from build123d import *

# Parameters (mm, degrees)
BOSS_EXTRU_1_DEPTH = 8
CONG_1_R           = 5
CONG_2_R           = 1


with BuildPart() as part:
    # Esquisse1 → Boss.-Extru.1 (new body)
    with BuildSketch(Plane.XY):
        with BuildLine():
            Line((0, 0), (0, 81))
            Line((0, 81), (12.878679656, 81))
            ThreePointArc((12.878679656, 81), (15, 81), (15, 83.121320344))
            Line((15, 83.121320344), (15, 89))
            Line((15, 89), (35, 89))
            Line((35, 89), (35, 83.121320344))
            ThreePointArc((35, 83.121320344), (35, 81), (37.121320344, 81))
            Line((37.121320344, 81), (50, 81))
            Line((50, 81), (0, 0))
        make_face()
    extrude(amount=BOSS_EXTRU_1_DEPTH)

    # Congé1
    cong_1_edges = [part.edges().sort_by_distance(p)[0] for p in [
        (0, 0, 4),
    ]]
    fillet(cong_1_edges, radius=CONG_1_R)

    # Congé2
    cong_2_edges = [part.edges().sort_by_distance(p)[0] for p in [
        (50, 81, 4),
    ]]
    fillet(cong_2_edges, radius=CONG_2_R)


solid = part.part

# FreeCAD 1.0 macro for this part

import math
import FreeCAD as App
import Part
import Sketcher
from FreeCAD import Vector
Q = App.Units.Quantity


def edges_at(feature, points):
    """Names of the edges that pass closest to the given points."""
    edges = feature.Shape.Edges
    near = lambda p: min(range(len(edges)), key=lambda i: edges[i].distToShape(Part.Vertex(*p))[0])
    return sorted({f"Edge{near(p) + 1}" for p in points})

doc = App.newDocument("Part")
body = doc.addObject("PartDesign::Body", "Body")

sketch1 = body.newObject("Sketcher::SketchObject", "Sketch")
sketch1.AttachmentSupport = (doc.getObject("XY_Plane"), [""])
sketch1.MapMode = "FlatFace"
sketch1.addGeometry([
    Part.LineSegment(Vector(0, 81, 0), Vector(0, 0, 0)),
    Part.LineSegment(Vector(0, 0, 0), Vector(50, 81, 0)),
    Part.LineSegment(Vector(50, 81, 0), Vector(37.1, 81, 0)),
    Part.ArcOfCircle(Part.Circle(Vector(36.1, 82.1, 0), Vector(0, 0, 1), 1.5), math.radians(135), math.radians(315)),
    Part.LineSegment(Vector(35, 83.1, 0), Vector(35, 89, 0)),
    Part.LineSegment(Vector(35, 89, 0), Vector(15, 89, 0)),
    Part.LineSegment(Vector(15, 89, 0), Vector(15, 83.1, 0)),
    Part.ArcOfCircle(Part.Circle(Vector(13.9, 82.1, 0), Vector(0, 0, 1), 1.5), math.radians(-135), math.radians(45)),
    Part.LineSegment(Vector(12.9, 81, 0), Vector(0, 81, 0)),
], False)
sketch1.addConstraint([
    Sketcher.Constraint("Coincident", 0, 2, 1, 1),
    Sketcher.Constraint("Coincident", 1, 2, 2, 1),
    Sketcher.Constraint("Coincident", 2, 2, 3, 2),
    Sketcher.Constraint("Coincident", 3, 1, 4, 1),
    Sketcher.Constraint("Coincident", 4, 2, 5, 1),
    Sketcher.Constraint("Coincident", 5, 2, 6, 1),
    Sketcher.Constraint("Coincident", 6, 2, 7, 2),
    Sketcher.Constraint("Coincident", 7, 1, 8, 1),
    Sketcher.Constraint("Coincident", 8, 2, 0, 1),
    Sketcher.Constraint("Vertical", 0),
    Sketcher.Constraint("Horizontal", 2),
    Sketcher.Constraint("Vertical", 4),
    Sketcher.Constraint("Horizontal", 5),
    Sketcher.Constraint("Vertical", 6),
    Sketcher.Constraint("Horizontal", 8),
    Sketcher.Constraint("Coincident", 0, 2, -1, 1),
    Sketcher.Constraint("Equal", 3, 7),
    Sketcher.Constraint("Horizontal", 3, 3, 7, 3),
    Sketcher.Constraint("Horizontal", 3, 1, 6, 2),
    Sketcher.Constraint("Horizontal", 2, 2, 7, 1),
    Sketcher.Constraint("Equal", 2, 8),
    Sketcher.Constraint("Radius", 3, Q("1.5 mm")),
    Sketcher.Constraint("DistanceX", 5, 2, 5, 1, Q("20 mm")),
    Sketcher.Constraint("DistanceY", 0, 2, 0, 1, Q("81 mm")),
    Sketcher.Constraint("DistanceX", -1, 1, 1, 2, Q("50 mm")),
    Sketcher.Constraint("DistanceY", -1, 1, 4, 2, Q("89 mm")),
    Sketcher.Constraint("DistanceX", 2, 2, 2, 1, Q("12.87868 mm")),
    Sketcher.Constraint("DistanceX", -1, 1, 3, 3, Q("36.06066 mm")),
])
pad1 = body.newObject("PartDesign::Pad", "Pad")
pad1.Profile = sketch1
pad1.Length = 8
doc.recompute()

fillet = body.newObject("PartDesign::Fillet", "Fillet")
fillet.Base = (pad1, edges_at(pad1, [(0, 0, 4)]))
fillet.Radius = 5
doc.recompute()

fillet2 = body.newObject("PartDesign::Fillet", "Fillet001")
fillet2.Base = (fillet, edges_at(fillet, [(50, 81, 4)]))
fillet2.Radius = 1

doc.recompute()
